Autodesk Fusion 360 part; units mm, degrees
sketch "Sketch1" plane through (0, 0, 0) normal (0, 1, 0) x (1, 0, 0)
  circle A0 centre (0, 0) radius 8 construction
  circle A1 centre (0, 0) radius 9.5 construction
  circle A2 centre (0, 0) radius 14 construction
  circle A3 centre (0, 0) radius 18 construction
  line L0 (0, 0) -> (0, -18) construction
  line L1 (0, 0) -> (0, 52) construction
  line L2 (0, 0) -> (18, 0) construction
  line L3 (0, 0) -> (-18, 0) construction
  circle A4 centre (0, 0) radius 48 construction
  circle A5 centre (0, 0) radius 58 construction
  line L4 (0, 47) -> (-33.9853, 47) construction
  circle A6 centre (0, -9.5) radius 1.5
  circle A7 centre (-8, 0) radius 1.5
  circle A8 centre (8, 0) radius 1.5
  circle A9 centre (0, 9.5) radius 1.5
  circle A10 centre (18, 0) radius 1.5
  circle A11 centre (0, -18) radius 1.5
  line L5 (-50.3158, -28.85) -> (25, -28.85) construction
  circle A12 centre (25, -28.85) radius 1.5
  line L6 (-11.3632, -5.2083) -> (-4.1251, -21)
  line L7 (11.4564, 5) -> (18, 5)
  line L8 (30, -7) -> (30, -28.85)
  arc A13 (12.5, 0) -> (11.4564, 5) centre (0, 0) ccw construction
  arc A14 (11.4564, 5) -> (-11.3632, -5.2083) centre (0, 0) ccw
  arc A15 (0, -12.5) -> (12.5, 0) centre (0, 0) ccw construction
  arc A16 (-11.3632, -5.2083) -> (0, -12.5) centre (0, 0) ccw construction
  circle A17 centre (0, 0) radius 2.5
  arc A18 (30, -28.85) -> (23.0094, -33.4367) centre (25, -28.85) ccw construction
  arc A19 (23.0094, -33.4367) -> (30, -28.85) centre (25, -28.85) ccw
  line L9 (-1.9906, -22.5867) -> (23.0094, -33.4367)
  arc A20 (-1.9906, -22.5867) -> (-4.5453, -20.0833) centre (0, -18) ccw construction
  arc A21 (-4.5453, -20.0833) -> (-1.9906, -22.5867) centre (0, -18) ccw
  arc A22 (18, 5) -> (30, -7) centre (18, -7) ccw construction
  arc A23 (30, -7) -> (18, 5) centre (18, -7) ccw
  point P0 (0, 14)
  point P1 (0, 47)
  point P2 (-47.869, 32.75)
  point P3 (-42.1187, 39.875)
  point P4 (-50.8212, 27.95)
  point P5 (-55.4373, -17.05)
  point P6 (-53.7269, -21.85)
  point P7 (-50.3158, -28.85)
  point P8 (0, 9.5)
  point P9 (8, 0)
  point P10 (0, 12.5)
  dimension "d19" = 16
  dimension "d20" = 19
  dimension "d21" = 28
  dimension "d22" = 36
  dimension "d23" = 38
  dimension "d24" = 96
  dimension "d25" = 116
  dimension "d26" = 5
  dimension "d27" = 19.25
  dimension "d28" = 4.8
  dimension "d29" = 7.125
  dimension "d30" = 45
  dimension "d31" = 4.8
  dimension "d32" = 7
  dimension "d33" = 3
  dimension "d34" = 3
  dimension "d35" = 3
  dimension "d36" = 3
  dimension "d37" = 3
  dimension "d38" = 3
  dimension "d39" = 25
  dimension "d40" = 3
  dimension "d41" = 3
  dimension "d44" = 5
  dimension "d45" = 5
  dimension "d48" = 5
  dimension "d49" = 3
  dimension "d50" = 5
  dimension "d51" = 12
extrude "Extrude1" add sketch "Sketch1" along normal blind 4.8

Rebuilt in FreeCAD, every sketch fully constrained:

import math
import FreeCAD as App
import Part
import Sketcher

V = App.Vector

doc = App.newDocument("Part")
body = doc.addObject("PartDesign::Body", "Body")

sketch1 = body.newObject("Sketcher::SketchObject", "Sketch")
sketch1.AttachmentSupport = (doc.getObject("XZ_Plane"), [""])
sketch1.MapMode = "FlatFace"
sketch1.addGeometry([
    Part.ArcOfCircle(Part.Circle(V(0, 0, 0), V(0, 0, 1), 12.5), math.radians(155), math.radians(336)),
    Part.LineSegment(V(-11.4, 5.2, 0), V(-4.5, 20.1, 0)),
    Part.ArcOfCircle(Part.Circle(V(0, 18, 0), V(0, 0, 1), 5), math.radians(113), math.radians(155)),
    Part.LineSegment(V(-2, 22.6, 0), V(23, 33.4, 0)),
    Part.ArcOfCircle(Part.Circle(V(25, 28.9, 0), V(0, 0, 1), 5), math.radians(0), math.radians(113)),
    Part.LineSegment(V(30, 28.9, 0), V(30, 7, 0)),
    Part.ArcOfCircle(Part.Circle(V(18, 7, 0), V(0, 0, 1), 12), math.radians(-90), math.radians(0)),
    Part.LineSegment(V(18, -5, 0), V(11.5, -5, 0)),
    Part.Circle(V(0, 18, 0), V(0, 0, 1), 1.5),
    Part.Circle(V(25, 28.9, 0), V(0, 0, 1), 1.5),
    Part.Circle(V(-8, 0, 0), V(0, 0, 1), 1.5),
    Part.Circle(V(0, 9.5, 0), V(0, 0, 1), 1.5),
    Part.Circle(V(0, 0, 0), V(0, 0, 1), 2.5),
    Part.Circle(V(8, 0, 0), V(0, 0, 1), 1.5),
    Part.Circle(V(0, -9.5, 0), V(0, 0, 1), 1.5),
    Part.Circle(V(18, 0, 0), V(0, 0, 1), 1.5),
], False)
sketch1.addConstraint([
    Sketcher.Constraint("Tangent", 0, 1, 1, 1),
    Sketcher.Constraint("Tangent", 1, 2, 2, 2),
    Sketcher.Constraint("Tangent", 2, 1, 3, 1),
    Sketcher.Constraint("Tangent", 3, 2, 4, 2),
    Sketcher.Constraint("Tangent", 4, 1, 5, 1),
    Sketcher.Constraint("Tangent", 5, 2, 6, 2),
    Sketcher.Constraint("Tangent", 6, 1, 7, 1),
    Sketcher.Constraint("Coincident", 7, 2, 0, 2),
    Sketcher.Constraint("Vertical", 5),
    Sketcher.Constraint("Horizontal", 7),
    Sketcher.Constraint("Coincident", 0, 3, -1, 1),
    Sketcher.Constraint("Coincident", 12, 3, -1, 1),
    Sketcher.Constraint("Coincident", 8, 3, 2, 3),
    Sketcher.Constraint("Coincident", 9, 3, 4, 3),
    Sketcher.Constraint("Equal", 2, 4),
    Sketcher.Constraint("Equal", 8, 9),
    Sketcher.Constraint("Equal", 9, 10),
    Sketcher.Constraint("Equal", 10, 11),
    Sketcher.Constraint("Equal", 11, 13),
    Sketcher.Constraint("Equal", 13, 14),
    Sketcher.Constraint("Equal", 14, 15),
    Sketcher.Constraint("Symmetric", 10, 3, 13, 3, -1, 1),
    Sketcher.Constraint("Symmetric", 11, 3, 14, 3, -1, 1),
    Sketcher.Constraint("PointOnObject", 2, 3, -2),
    Sketcher.Constraint("PointOnObject", 10, 3, -1),
    Sketcher.Constraint("PointOnObject", 11, 3, -2),
    Sketcher.Constraint("PointOnObject", 15, 3, -1),
    Sketcher.Constraint("Vertical", 6, 3, 15, 3),
    Sketcher.Constraint("Diameter", 8, 3.0),
    Sketcher.Constraint("Diameter", 12, 5.0),
    Sketcher.Constraint("Radius", 2, 5.0),
    Sketcher.Constraint("Radius", 6, 12.0),
    Sketcher.Constraint("Radius", 0, 12.5),
    Sketcher.Constraint("DistanceX", -1, 1, 4, 3, 25.0),
    Sketcher.Constraint("DistanceY", -1, 1, 6, 3, 7.0),
    Sketcher.Constraint("DistanceX", 10, 3, 13, 3, 16.0),
    Sketcher.Constraint("DistanceY", 14, 3, 11, 3, 19.0),
    Sketcher.Constraint("DistanceY", -1, 1, 2, 3, 18.0),
    Sketcher.Constraint("DistanceY", 5, 2, 5, 1, 21.85),
])
pad1 = body.newObject("PartDesign::Pad", "Pad")
pad1.Profile = sketch1
pad1.Length = 4.8
pad1.Reversed = True

doc.recompute()
